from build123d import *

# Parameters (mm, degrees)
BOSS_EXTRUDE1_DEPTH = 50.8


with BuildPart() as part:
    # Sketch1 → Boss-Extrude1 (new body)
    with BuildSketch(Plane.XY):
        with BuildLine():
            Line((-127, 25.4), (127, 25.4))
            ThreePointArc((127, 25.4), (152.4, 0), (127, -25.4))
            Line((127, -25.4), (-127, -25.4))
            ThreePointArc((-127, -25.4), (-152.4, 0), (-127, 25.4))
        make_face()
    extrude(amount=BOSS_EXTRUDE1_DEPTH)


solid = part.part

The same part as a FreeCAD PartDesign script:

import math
import FreeCAD as App
import Part
import Sketcher
from FreeCAD import Vector
Q = App.Units.Quantity

doc = App.newDocument("Part")
params = doc.addObject("Spreadsheet::Sheet", "Params")
for row, (alias, value) in enumerate([
    ("sketch1_radius", "1 in"),
    ("sketch1_width", "10 in"),
    ("pad1_length", "2 in"),
], start=1):
    params.set(f"A{row}", alias)
    params.set(f"B{row}", "=" + value)
    params.setAlias(f"B{row}", alias)

body = doc.addObject("PartDesign::Body", "Body")

# Sketch on XY plane
sketch1 = doc.addObject("Sketcher::SketchObject", "Sketch")
body.addObject(sketch1)
sketch1.AttachmentSupport = (doc.XY_Plane, [""])
sketch1.MapMode = "FlatFace"
sketch1.addGeometry([
    Part.LineSegment(Vector(127, 25, 0), Vector(-127, 25, 0)),
    Part.ArcOfCircle(Part.Circle(Vector(-127, 0, 0), Vector(0, 0, 1), 25), math.radians(90), math.radians(270)),
    Part.LineSegment(Vector(-127, -25, 0), Vector(127, -25, 0)),
    Part.ArcOfCircle(Part.Circle(Vector(127, 0, 0), Vector(0, 0, 1), 25), math.radians(-90), math.radians(90)),
], False)
sketch1.addConstraint([
    Sketcher.Constraint("Tangent", 0, 2, 1, 1),
    Sketcher.Constraint("Tangent", 1, 2, 2, 1),
    Sketcher.Constraint("Tangent", 2, 2, 3, 1),
    Sketcher.Constraint("Tangent", 3, 2, 0, 1),
    Sketcher.Constraint("Horizontal", 0),
    Sketcher.Constraint("Horizontal", 2),
    Sketcher.Constraint("Symmetric", 1, 3, 3, 3, -1, 1),
    Sketcher.Constraint("Radius", 1, Q("1 in")),
    Sketcher.Constraint("DistanceX", 0, 2, 0, 1, Q("10 in")),
])
sketch1.setExpression("Constraints[7]", "Params.sketch1_radius")
sketch1.setExpression("Constraints[8]", "Params.sketch1_width")
pad1 = doc.addObject("PartDesign::Pad", "Pad")
body.addObject(pad1)
pad1.Profile = sketch1
pad1.setExpression("Length", "Params.pad1_length")

doc.recompute()
